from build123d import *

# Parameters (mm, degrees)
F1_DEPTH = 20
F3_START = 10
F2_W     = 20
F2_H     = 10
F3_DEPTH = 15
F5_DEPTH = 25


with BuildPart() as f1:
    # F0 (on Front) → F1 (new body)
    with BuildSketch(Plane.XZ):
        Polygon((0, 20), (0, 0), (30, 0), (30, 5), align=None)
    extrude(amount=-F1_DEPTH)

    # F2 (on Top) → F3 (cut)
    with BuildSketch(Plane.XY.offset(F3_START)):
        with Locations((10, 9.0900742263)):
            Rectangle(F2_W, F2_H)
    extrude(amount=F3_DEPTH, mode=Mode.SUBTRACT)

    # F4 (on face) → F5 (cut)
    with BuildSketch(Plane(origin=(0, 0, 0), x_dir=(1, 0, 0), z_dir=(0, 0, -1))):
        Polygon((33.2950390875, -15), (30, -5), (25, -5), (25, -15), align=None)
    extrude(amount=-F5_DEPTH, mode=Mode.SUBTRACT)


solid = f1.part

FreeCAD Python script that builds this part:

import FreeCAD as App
import Part
import Sketcher
Q = App.Units.Quantity


def add_polygon(sketch, points):
    """Adds a closed chain of lines whose ends are joined by coincident constraints."""
    first, n = sketch.GeometryCount, len(points)
    for a, b in zip(points, points[1:] + points[:1]):
        sketch.addGeometry(Part.LineSegment(App.Vector(*a, 0), App.Vector(*b, 0)), False)
    for i in range(n):
        sketch.addConstraint(Sketcher.Constraint("Coincident", first + i, 2, first + (i + 1) % n, 1))

doc = App.newDocument("Part")
body = doc.addObject("PartDesign::Body", "Body")

# Sketch on XZ plane
sketch1 = body.newObject("Sketcher::SketchObject", "Sketch")
sketch1.AttachmentSupport = (doc.getObject("XZ_Plane"), [""])
sketch1.MapMode = "FlatFace"
add_polygon(sketch1, [(0, 20), (0, 0), (30, 0), (30, 5)])  # lines 0-3
sketch1.addConstraint([
    Sketcher.Constraint("Vertical", 0),
    Sketcher.Constraint("Horizontal", 1),
    Sketcher.Constraint("Vertical", 2),
    Sketcher.Constraint("Coincident", 0, 2, -1, 1),
    Sketcher.Constraint("DistanceX", 1, 1, 1, 2, Q("30 mm")),
    Sketcher.Constraint("DistanceY", 0, 2, 0, 1, Q("20 mm")),
    Sketcher.Constraint("DistanceY", 2, 1, 2, 2, Q("5 mm")),
])
pad1 = body.newObject("PartDesign::Pad", "Pad")
pad1.Profile = sketch1
pad1.Length = 20
pad1.Reversed = True

# Sketch on XY plane
sketch2 = body.newObject("Sketcher::SketchObject", "Sketch001")
sketch2.AttachmentSupport = (doc.getObject("XY_Plane"), [""])
sketch2.MapMode = "FlatFace"
sketch2.AttachmentOffset = App.Placement(App.Vector(0, 0, 10), App.Rotation())
add_polygon(sketch2, [(0, 14), (0, 4), (20, 4), (20, 14)])  # lines 0-3
sketch2.addConstraint([
    Sketcher.Constraint("Vertical", 0),
    Sketcher.Constraint("Horizontal", 1),
    Sketcher.Constraint("Vertical", 2),
    Sketcher.Constraint("Horizontal", 3),
    Sketcher.Constraint("PointOnObject", 0, 2, -2),
    Sketcher.Constraint("DistanceX", 1, 1, 1, 2, Q("20 mm")),
    Sketcher.Constraint("DistanceY", 0, 2, 0, 1, Q("10 mm")),
    Sketcher.Constraint("DistanceY", -1, 1, 0, 2, Q("4.090074 mm")),
])
pocket1 = body.newObject("PartDesign::Pocket", "Pocket")
pocket1.Profile = sketch2
pocket1.Length = 15
pocket1.Reversed = True

# Sketch on XY plane
sketch3 = body.newObject("Sketcher::SketchObject", "Sketch002")
sketch3.AttachmentSupport = (doc.getObject("XY_Plane"), [""])
sketch3.MapMode = "FlatFace"
add_polygon(sketch3, [(33, 15), (30, 5), (25, 5), (25, 15)])  # lines 0-3
sketch3.addConstraint([
    Sketcher.Constraint("Horizontal", 1),
    Sketcher.Constraint("Vertical", 2),
    Sketcher.Constraint("Horizontal", 3),
    Sketcher.Constraint("DistanceX", 1, 2, 1, 1, Q("5 mm")),
    Sketcher.Constraint("DistanceY", 2, 1, 2, 2, Q("10 mm")),
    Sketcher.Constraint("DistanceX", -1, 1, 0, 2, Q("30 mm")),
    Sketcher.Constraint("DistanceY", -1, 1, 0, 2, Q("5 mm")),
    Sketcher.Constraint("DistanceX", 3, 1, 3, 2, Q("8.295039 mm")),
])
pocket2 = body.newObject("PartDesign::Pocket", "Pocket001")
pocket2.Profile = sketch3
pocket2.Length = 25
pocket2.Reversed = True

doc.recompute()
